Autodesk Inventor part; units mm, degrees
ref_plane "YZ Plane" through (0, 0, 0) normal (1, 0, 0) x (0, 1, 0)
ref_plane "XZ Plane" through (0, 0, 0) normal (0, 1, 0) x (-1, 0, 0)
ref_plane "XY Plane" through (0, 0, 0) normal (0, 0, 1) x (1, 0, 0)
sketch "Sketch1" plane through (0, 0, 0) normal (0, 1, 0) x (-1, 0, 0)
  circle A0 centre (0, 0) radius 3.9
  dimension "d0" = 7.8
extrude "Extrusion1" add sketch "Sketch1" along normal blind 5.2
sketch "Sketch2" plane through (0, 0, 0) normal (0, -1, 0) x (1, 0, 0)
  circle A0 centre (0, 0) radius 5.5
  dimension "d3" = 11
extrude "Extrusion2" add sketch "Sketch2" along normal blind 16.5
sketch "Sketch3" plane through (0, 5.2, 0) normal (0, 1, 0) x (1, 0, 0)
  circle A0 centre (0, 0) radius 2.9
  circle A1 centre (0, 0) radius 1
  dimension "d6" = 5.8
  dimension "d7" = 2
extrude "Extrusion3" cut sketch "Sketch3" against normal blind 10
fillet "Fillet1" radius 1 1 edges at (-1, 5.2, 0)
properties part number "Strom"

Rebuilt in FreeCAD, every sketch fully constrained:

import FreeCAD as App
import Part
import Sketcher

V = App.Vector
Q = App.Units.Quantity


def edges_at(feature, points):
    """Names of the edges that pass closest to the given points."""
    edges = feature.Shape.Edges
    near = lambda p: min(range(len(edges)), key=lambda i: edges[i].distToShape(Part.Vertex(*p))[0])
    return sorted({f"Edge{near(p) + 1}" for p in points})

doc = App.newDocument("Part")
body = doc.addObject("PartDesign::Body", "Body")

# Sketch on XZ plane
sketch1 = body.newObject("Sketcher::SketchObject", "Sketch")
sketch1.AttachmentSupport = (doc.getObject("XZ_Plane"), [""])
sketch1.MapMode = "FlatFace"
sketch1.addGeometry(Part.Circle(V(0, 0, 0), V(0, 0, 1), 3.9), False)
sketch1.addConstraint([
    Sketcher.Constraint("Coincident", 0, 3, -1, 1),
    Sketcher.Constraint("Diameter", 0, Q("7.8 mm")),
])
pad1 = body.newObject("PartDesign::Pad", "Pad")
pad1.Profile = sketch1
pad1.Length = 5.2
pad1.Reversed = True

# Sketch on XZ plane
sketch2 = body.newObject("Sketcher::SketchObject", "Sketch001")
sketch2.AttachmentSupport = (doc.getObject("XZ_Plane"), [""])
sketch2.MapMode = "FlatFace"
sketch2.addGeometry(Part.Circle(V(0, 0, 0), V(0, 0, 1), 6), False)
sketch2.addConstraint([
    Sketcher.Constraint("Coincident", 0, 3, -1, 1),
    Sketcher.Constraint("Diameter", 0, Q("11 mm")),
])
pad2 = body.newObject("PartDesign::Pad", "Pad001")
pad2.Profile = sketch2
pad2.Length = 16.5

# Sketch on XZ plane
sketch3 = body.newObject("Sketcher::SketchObject", "Sketch002")
sketch3.AttachmentSupport = (doc.getObject("XZ_Plane"), [""])
sketch3.MapMode = "FlatFace"
sketch3.AttachmentOffset = App.Placement(V(0, 0, -5.2), App.Rotation())
sketch3.addGeometry([
    Part.Circle(V(0, 0, 0), V(0, 0, 1), 2.9),
    Part.Circle(V(0, 0, 0), V(0, 0, 1), 1),
], False)
sketch3.addConstraint([
    Sketcher.Constraint("Coincident", 0, 3, -1, 1),
    Sketcher.Constraint("Coincident", 1, 3, -1, 1),
    Sketcher.Constraint("Diameter", 1, Q("2 mm")),
    Sketcher.Constraint("Diameter", 0, Q("5.8 mm")),
])
pocket1 = body.newObject("PartDesign::Pocket", "Pocket")
pocket1.Profile = sketch3
pocket1.Length = 10
pocket1.Reversed = True
doc.recompute()

fillet = body.newObject("PartDesign::Fillet", "Fillet")
fillet.Base = (pocket1, edges_at(pocket1, [(-1, 5.2, 0)]))
fillet.Radius = 1

doc.recompute()
